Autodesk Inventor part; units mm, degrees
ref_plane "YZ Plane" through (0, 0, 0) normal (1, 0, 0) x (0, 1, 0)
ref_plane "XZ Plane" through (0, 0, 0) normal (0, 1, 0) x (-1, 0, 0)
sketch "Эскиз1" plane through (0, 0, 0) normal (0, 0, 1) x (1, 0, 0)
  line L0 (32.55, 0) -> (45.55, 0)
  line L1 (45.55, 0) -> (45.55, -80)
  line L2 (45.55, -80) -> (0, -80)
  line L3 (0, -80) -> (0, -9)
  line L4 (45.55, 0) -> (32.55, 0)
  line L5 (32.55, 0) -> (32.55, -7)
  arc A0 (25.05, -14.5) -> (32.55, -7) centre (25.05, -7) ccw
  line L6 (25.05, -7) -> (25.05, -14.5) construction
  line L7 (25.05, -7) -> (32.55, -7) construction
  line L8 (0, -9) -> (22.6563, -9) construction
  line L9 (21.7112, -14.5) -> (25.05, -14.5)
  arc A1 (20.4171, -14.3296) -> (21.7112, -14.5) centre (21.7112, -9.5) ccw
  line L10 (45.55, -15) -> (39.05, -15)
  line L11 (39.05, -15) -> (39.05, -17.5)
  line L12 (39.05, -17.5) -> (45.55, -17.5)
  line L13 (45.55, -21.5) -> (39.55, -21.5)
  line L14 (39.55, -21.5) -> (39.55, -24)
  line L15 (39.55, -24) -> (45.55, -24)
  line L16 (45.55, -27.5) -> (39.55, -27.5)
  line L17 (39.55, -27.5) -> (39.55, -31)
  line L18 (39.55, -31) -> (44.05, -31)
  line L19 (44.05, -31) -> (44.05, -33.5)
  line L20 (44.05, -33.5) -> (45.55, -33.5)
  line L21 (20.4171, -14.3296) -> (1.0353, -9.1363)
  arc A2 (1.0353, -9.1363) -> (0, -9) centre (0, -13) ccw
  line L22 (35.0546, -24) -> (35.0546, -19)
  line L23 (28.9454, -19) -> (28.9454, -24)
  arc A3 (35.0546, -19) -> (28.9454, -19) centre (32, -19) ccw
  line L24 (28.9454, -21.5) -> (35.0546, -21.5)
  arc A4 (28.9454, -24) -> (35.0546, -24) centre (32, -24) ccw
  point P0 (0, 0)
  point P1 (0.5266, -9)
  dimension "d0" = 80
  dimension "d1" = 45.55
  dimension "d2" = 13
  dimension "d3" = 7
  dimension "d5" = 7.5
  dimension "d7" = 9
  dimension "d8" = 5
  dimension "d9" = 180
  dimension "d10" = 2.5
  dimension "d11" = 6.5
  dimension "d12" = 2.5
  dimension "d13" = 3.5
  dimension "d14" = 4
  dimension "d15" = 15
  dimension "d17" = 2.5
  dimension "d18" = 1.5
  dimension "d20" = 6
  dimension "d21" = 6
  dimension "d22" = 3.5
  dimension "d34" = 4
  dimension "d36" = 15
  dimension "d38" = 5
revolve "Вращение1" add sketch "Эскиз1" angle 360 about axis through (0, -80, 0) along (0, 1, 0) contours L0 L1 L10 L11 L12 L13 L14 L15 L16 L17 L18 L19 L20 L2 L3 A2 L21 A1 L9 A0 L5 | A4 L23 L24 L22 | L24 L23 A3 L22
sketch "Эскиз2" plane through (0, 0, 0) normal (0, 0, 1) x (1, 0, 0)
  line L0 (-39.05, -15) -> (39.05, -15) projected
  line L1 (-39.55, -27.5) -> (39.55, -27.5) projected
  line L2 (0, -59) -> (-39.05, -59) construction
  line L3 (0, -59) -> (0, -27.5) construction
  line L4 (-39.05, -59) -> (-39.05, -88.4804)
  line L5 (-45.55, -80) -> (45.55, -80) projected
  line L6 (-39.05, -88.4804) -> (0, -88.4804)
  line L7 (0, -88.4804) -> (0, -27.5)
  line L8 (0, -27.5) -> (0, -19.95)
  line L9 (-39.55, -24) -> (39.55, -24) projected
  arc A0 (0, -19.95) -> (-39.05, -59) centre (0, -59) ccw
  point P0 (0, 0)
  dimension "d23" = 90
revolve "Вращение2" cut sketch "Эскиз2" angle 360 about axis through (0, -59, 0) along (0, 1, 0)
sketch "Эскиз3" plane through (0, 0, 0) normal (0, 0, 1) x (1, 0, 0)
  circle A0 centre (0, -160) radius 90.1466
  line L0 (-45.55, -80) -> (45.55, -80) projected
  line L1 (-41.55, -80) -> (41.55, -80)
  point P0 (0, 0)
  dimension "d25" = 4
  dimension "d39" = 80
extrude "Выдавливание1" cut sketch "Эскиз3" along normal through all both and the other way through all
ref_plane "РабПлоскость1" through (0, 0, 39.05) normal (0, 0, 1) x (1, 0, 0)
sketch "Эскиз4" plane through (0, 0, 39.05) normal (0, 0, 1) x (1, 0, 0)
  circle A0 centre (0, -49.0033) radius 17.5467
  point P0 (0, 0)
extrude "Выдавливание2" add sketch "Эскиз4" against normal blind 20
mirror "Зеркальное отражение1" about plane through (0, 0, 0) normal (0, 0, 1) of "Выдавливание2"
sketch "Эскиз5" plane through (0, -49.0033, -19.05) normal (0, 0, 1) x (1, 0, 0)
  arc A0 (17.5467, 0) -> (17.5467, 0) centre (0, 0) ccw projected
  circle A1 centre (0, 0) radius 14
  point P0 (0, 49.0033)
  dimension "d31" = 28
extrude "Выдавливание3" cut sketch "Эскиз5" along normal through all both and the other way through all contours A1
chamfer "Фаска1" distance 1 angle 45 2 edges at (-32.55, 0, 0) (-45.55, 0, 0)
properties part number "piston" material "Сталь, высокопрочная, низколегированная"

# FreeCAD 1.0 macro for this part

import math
import FreeCAD as App
import Part
import Sketcher
from FreeCAD import Vector
Q = App.Units.Quantity


def edges_at(feature, points):
    """Names of the edges that pass closest to the given points."""
    edges = feature.Shape.Edges
    near = lambda p: min(range(len(edges)), key=lambda i: edges[i].distToShape(Part.Vertex(*p))[0])
    return sorted({f"Edge{near(p) + 1}" for p in points})

doc = App.newDocument("Part")
body = doc.addObject("PartDesign::Body", "Body")

# Sketch on XY plane
sketch1 = body.newObject("Sketcher::SketchObject", "Sketch")
sketch1.AttachmentSupport = (doc.getObject("XY_Plane"), [""])
sketch1.MapMode = "FlatFace"
sketch1.addGeometry([
    Part.LineSegment(Vector(45.5, 0, 0), Vector(32.5, 0, 0)),  # 0
    Part.LineSegment(Vector(32.5, 0, 0), Vector(32.5, -7, 0)),  # 1
    Part.ArcOfCircle(Part.Circle(Vector(25.1, -7, 0), Vector(0, 0, 1), 7.5), math.radians(-90), math.radians(0)),  # 2
    Part.LineSegment(Vector(25.1, -14.5, 0), Vector(21.7, -14.5, 0)),  # 3
    Part.ArcOfCircle(Part.Circle(Vector(21.7, -9.5, 0), Vector(0, 0, 1), 5), math.radians(-105), math.radians(-90)),  # 4
    Part.LineSegment(Vector(20.4, -14.3, 0), Vector(1, -9.1, 0)),  # 5
    Part.ArcOfCircle(Part.Circle(Vector(0, -13, 0), Vector(0, 0, 1), 4), math.radians(75), math.radians(90)),  # 6
    Part.LineSegment(Vector(0, -9, 0), Vector(0, -80, 0)),  # 7
    Part.LineSegment(Vector(0, -80, 0), Vector(45.5, -80, 0)),  # 8
    Part.LineSegment(Vector(45.5, -80, 0), Vector(45.5, -33.5, 0)),  # 9
    Part.LineSegment(Vector(45.5, -33.5, 0), Vector(44, -33.5, 0)),  # 10
    Part.LineSegment(Vector(44, -33.5, 0), Vector(44, -31, 0)),  # 11
    Part.LineSegment(Vector(44, -31, 0), Vector(39.5, -31, 0)),  # 12
    Part.LineSegment(Vector(39.5, -31, 0), Vector(39.5, -27.5, 0)),  # 13
    Part.LineSegment(Vector(39.5, -27.5, 0), Vector(45.5, -27.5, 0)),  # 14
    Part.LineSegment(Vector(45.5, -27.5, 0), Vector(45.5, -24, 0)),  # 15
    Part.LineSegment(Vector(45.5, -24, 0), Vector(39.5, -24, 0)),  # 16
    Part.LineSegment(Vector(39.5, -24, 0), Vector(39.5, -21.5, 0)),  # 17
    Part.LineSegment(Vector(39.5, -21.5, 0), Vector(45.5, -21.5, 0)),  # 18
    Part.LineSegment(Vector(45.5, -21.5, 0), Vector(45.5, -17.5, 0)),  # 19
    Part.LineSegment(Vector(45.5, -17.5, 0), Vector(39, -17.5, 0)),  # 20
    Part.LineSegment(Vector(39, -17.5, 0), Vector(39, -15, 0)),  # 21
    Part.LineSegment(Vector(39, -15, 0), Vector(45.5, -15, 0)),  # 22
    Part.LineSegment(Vector(45.5, -15, 0), Vector(45.5, 0, 0)),  # 23
], False)
sketch1.addConstraint([
    Sketcher.Constraint("Coincident", 0, 2, 1, 1),
    Sketcher.Constraint("Tangent", 1, 2, 2, 2),
    Sketcher.Constraint("Tangent", 2, 1, 3, 1),
    Sketcher.Constraint("Tangent", 3, 2, 4, 2),
    Sketcher.Constraint("Tangent", 4, 1, 5, 1),
    Sketcher.Constraint("Tangent", 5, 2, 6, 1),
    Sketcher.Constraint("Coincident", 6, 2, 7, 1),
    Sketcher.Constraint("Coincident", 7, 2, 8, 1),
    Sketcher.Constraint("Coincident", 8, 2, 9, 1),
    Sketcher.Constraint("Coincident", 9, 2, 10, 1),
    Sketcher.Constraint("Coincident", 10, 2, 11, 1),
    Sketcher.Constraint("Coincident", 11, 2, 12, 1),
    Sketcher.Constraint("Coincident", 12, 2, 13, 1),
    Sketcher.Constraint("Coincident", 13, 2, 14, 1),
    Sketcher.Constraint("Coincident", 14, 2, 15, 1),
    Sketcher.Constraint("Coincident", 15, 2, 16, 1),
    Sketcher.Constraint("Coincident", 16, 2, 17, 1),
    Sketcher.Constraint("Coincident", 17, 2, 18, 1),
    Sketcher.Constraint("Coincident", 18, 2, 19, 1),
    Sketcher.Constraint("Coincident", 19, 2, 20, 1),
    Sketcher.Constraint("Coincident", 20, 2, 21, 1),
    Sketcher.Constraint("Coincident", 21, 2, 22, 1),
    Sketcher.Constraint("Coincident", 22, 2, 23, 1),
    Sketcher.Constraint("Coincident", 23, 2, 0, 1),
    Sketcher.Constraint("Horizontal", 0),
    Sketcher.Constraint("Vertical", 1),
    Sketcher.Constraint("Horizontal", 3),
    Sketcher.Constraint("Vertical", 7),
    Sketcher.Constraint("Horizontal", 8),
    Sketcher.Constraint("Vertical", 9),
    Sketcher.Constraint("Horizontal", 10),
    Sketcher.Constraint("Vertical", 11),
    Sketcher.Constraint("Horizontal", 12),
    Sketcher.Constraint("Vertical", 13),
    Sketcher.Constraint("Horizontal", 14),
    Sketcher.Constraint("Vertical", 15),
    Sketcher.Constraint("Horizontal", 16),
    Sketcher.Constraint("Vertical", 17),
    Sketcher.Constraint("Horizontal", 18),
    Sketcher.Constraint("Vertical", 19),
    Sketcher.Constraint("Horizontal", 20),
    Sketcher.Constraint("Vertical", 21),
    Sketcher.Constraint("Horizontal", 22),
    Sketcher.Constraint("Vertical", 23),
    Sketcher.Constraint("PointOnObject", 6, 3, -2),
    Sketcher.Constraint("PointOnObject", 0, 2, -1),
    Sketcher.Constraint("PointOnObject", 6, 2, -2),
    Sketcher.Constraint("Vertical", 9, 2, 14, 2),
    Sketcher.Constraint("Vertical", 13, 2, 16, 2),
    Sketcher.Constraint("Vertical", 15, 2, 18, 2),
    Sketcher.Constraint("Vertical", 19, 2, 22, 2),
    Sketcher.Constraint("Equal", 13, 15),
    Sketcher.Constraint("Equal", 11, 17),
    Sketcher.Constraint("Equal", 17, 21),
    Sketcher.Constraint("Radius", 6, Q("4 mm")),
    Sketcher.Constraint("Radius", 2, Q("7.5 mm")),
    Sketcher.Constraint("DistanceX", 0, 2, 0, 1, Q("13 mm")),
    Sketcher.Constraint("DistanceX", 14, 1, 14, 2, Q("6 mm")),
    Sketcher.Constraint("DistanceY", 1, 2, 1, 1, Q("7 mm")),
    Sketcher.Constraint("DistanceY", 19, 1, 19, 2, Q("4 mm")),
    Sketcher.Constraint("DistanceY", 23, 1, 23, 2, Q("15 mm")),
    Sketcher.Constraint("DistanceX", 10, 2, 10, 1, Q("1.5 mm")),
    Sketcher.Constraint("DistanceX", 20, 2, 20, 1, Q("6.5 mm")),
    Sketcher.Constraint("DistanceY", 11, 1, 11, 2, Q("2.5 mm")),
    Sketcher.Constraint("DistanceY", 13, 1, 13, 2, Q("3.5 mm")),
    Sketcher.Constraint("DistanceY", 6, 3, -1, 1, Q("13 mm")),
    Sketcher.Constraint("DistanceY", 7, 2, -1, 1, Q("80 mm")),
    Sketcher.Constraint("DistanceX", 8, 1, 8, 2, Q("45.55 mm")),
    Sketcher.Constraint("Angle", 5, Q("165 deg")),
    Sketcher.Constraint("Radius", 4, Q("5.0015 mm")),
])
revolution = body.newObject("PartDesign::Revolution", "Revolution")
revolution.Profile = sketch1
revolution.ReferenceAxis = (sketch1, ["V_Axis"])
revolution.Angle = 360

# Sketch on XY plane
sketch2 = body.newObject("Sketcher::SketchObject", "Sketch001")
sketch2.AttachmentSupport = (doc.getObject("XY_Plane"), [""])
sketch2.MapMode = "FlatFace"
sketch2.addGeometry([
    Part.LineSegment(Vector(-39, -59, 0), Vector(-39, -88, 0)),
    Part.LineSegment(Vector(-39, -88, 0), Vector(0, -88, 0)),
    Part.LineSegment(Vector(0, -88, 0), Vector(0, -20, 0)),
    Part.ArcOfCircle(Part.Circle(Vector(0, -59, 0), Vector(0, 0, 1), 39), math.radians(90), math.radians(180)),
], False)
sketch2.addConstraint([
    Sketcher.Constraint("Coincident", 0, 2, 1, 1),
    Sketcher.Constraint("Coincident", 1, 2, 2, 1),
    Sketcher.Constraint("Coincident", 2, 2, 3, 1),
    Sketcher.Constraint("Tangent", 3, 2, 0, 1),
    Sketcher.Constraint("Vertical", 0),
    Sketcher.Constraint("Horizontal", 1),
    Sketcher.Constraint("Vertical", 2),
    Sketcher.Constraint("PointOnObject", 3, 3, -2),
    Sketcher.Constraint("PointOnObject", 1, 2, -2),
    Sketcher.Constraint("Radius", 3, Q("39.05 mm")),
    Sketcher.Constraint("DistanceY", 3, 3, -1, 1, Q("59 mm")),
    Sketcher.Constraint("DistanceY", 0, 2, 0, 1, Q("29.4804 mm")),
])
groove = body.newObject("PartDesign::Groove", "Groove")
groove.Profile = sketch2
groove.ReferenceAxis = (sketch2, ["V_Axis"])
groove.Angle = 360

# Sketch on XY plane
sketch3 = body.newObject("Sketcher::SketchObject", "Sketch002")
sketch3.AttachmentSupport = (doc.getObject("XY_Plane"), [""])
sketch3.MapMode = "FlatFace"
sketch3.addGeometry(Part.Circle(Vector(0, -160, 0), Vector(0, 0, 1), 90), False)
sketch3.addConstraint([
    Sketcher.Constraint("PointOnObject", 0, 3, -2),
    Sketcher.Constraint("DistanceY", 0, 3, -1, 1, Q("160 mm")),
    Sketcher.Constraint("Diameter", 0, Q("180.2932 mm")),
])
pocket1 = body.newObject("PartDesign::Pocket", "Pocket")
pocket1.Profile = sketch3
pocket1.Type = "ThroughAll"
pocket1.Midplane = True

# Sketch on XY plane
sketch4 = body.newObject("Sketcher::SketchObject", "Sketch003")
sketch4.AttachmentSupport = (doc.getObject("XY_Plane"), [""])
sketch4.MapMode = "FlatFace"
sketch4.AttachmentOffset = App.Placement(Vector(0, 0, 39.05), App.Rotation())
sketch4.addGeometry(Part.Circle(Vector(0, -49, 0), Vector(0, 0, 1), 18), False)
sketch4.addConstraint([
    Sketcher.Constraint("PointOnObject", 0, 3, -2),
    Sketcher.Constraint("Diameter", 0, Q("35.0934 mm")),
    Sketcher.Constraint("DistanceY", 0, 3, -1, 1, Q("49.0033 mm")),
])
pad1 = body.newObject("PartDesign::Pad", "Pad")
pad1.Profile = sketch4
pad1.Length = 20
pad1.Reversed = True
doc.recompute()

mirrored = body.newObject("PartDesign::Mirrored", "Mirrored")
mirrored.Originals = [pad1]
mirrored.MirrorPlane = (doc.getObject("XY_Plane"), [""])
body.Tip = mirrored

# Sketch on XY plane
sketch5 = body.newObject("Sketcher::SketchObject", "Sketch004")
sketch5.AttachmentSupport = (doc.getObject("XY_Plane"), [""])
sketch5.MapMode = "FlatFace"
sketch5.AttachmentOffset = App.Placement(Vector(0, 0, -19.05), App.Rotation())
sketch5.addGeometry(Part.Circle(Vector(0, -49, 0), Vector(0, 0, 1), 14), False)
sketch5.addConstraint([
    Sketcher.Constraint("PointOnObject", 0, 3, -2),
    Sketcher.Constraint("Diameter", 0, Q("28 mm")),
    Sketcher.Constraint("DistanceY", 0, 3, -1, 1, Q("49.0033 mm")),
])
pocket2 = body.newObject("PartDesign::Pocket", "Pocket001")
pocket2.Profile = sketch5
pocket2.Type = "ThroughAll"
pocket2.Midplane = True
doc.recompute()

chamfer = body.newObject("PartDesign::Chamfer", "Chamfer")
chamfer.Base = (pocket2, edges_at(pocket2, [(-32.55, 0, 0), (-45.55, 0, 0)]))
chamfer.Size = 1

doc.recompute()
